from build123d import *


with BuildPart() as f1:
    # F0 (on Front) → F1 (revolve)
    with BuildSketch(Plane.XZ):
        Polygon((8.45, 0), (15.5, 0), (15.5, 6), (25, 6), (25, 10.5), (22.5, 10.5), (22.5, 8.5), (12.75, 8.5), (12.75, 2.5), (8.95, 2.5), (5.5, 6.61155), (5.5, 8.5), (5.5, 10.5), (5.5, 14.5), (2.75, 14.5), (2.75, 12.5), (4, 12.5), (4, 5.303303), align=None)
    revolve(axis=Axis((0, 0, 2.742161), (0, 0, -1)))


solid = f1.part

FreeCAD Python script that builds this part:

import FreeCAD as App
import Part
import Sketcher
Q = App.Units.Quantity


def add_polygon(sketch, points):
    """Adds a closed chain of lines whose ends are joined by coincident constraints."""
    first, n = sketch.GeometryCount, len(points)
    for a, b in zip(points, points[1:] + points[:1]):
        sketch.addGeometry(Part.LineSegment(App.Vector(*a, 0), App.Vector(*b, 0)), False)
    for i in range(n):
        sketch.addConstraint(Sketcher.Constraint("Coincident", first + i, 2, first + (i + 1) % n, 1))

doc = App.newDocument("Part")
params = doc.addObject("Spreadsheet::Sheet", "Params")
for row, (alias, value) in enumerate([
    ("sketch1_height", "6 mm"),
    ("sketch1_height2", "2 mm"),
    ("sketch1_width", "9.5 mm"),
    ("sketch1_width2", "2.5 mm"),
    ("sketch1_width3", "3.8 mm"),
    ("revolution_angle", "360 deg"),
], start=1):
    params.set(f"A{row}", alias)
    params.set(f"B{row}", "=" + value)
    params.setAlias(f"B{row}", alias)

body = doc.addObject("PartDesign::Body", "Body")

# Sketch on XZ plane
sketch1 = doc.addObject("Sketcher::SketchObject", "Sketch")
body.addObject(sketch1)
sketch1.AttachmentSupport = (doc.XZ_Plane, [""])
sketch1.MapMode = "FlatFace"
add_polygon(sketch1, [(8.45, 0), (15.5, 0), (15.5, 6), (25, 6), (25, 10.5), (22.5, 10.5), (22.5, 8.5), (12.75, 8.5), (12.75, 2.5), (8.95, 2.5), (5.5, 6.61155), (5.5, 14.5), (2.75, 14.5), (2.75, 12.5), (4, 12.5), (4, 5.303303)])  # lines 0-15
sketch1.addConstraint(Sketcher.Constraint("Horizontal", 0))
sketch1.addConstraint(Sketcher.Constraint("Vertical", 1))
sketch1.addConstraint(Sketcher.Constraint("Horizontal", 2))
sketch1.addConstraint(Sketcher.Constraint("Vertical", 3))
sketch1.addConstraint(Sketcher.Constraint("Horizontal", 4))
sketch1.addConstraint(Sketcher.Constraint("Vertical", 5))
sketch1.addConstraint(Sketcher.Constraint("Horizontal", 6))
sketch1.addConstraint(Sketcher.Constraint("Vertical", 7))
sketch1.addConstraint(Sketcher.Constraint("Horizontal", 8))
sketch1.addConstraint(Sketcher.Constraint("Vertical", 10))
sketch1.addConstraint(Sketcher.Constraint("Horizontal", 11))
sketch1.addConstraint(Sketcher.Constraint("Vertical", 12))
sketch1.addConstraint(Sketcher.Constraint("Horizontal", 13))
sketch1.addConstraint(Sketcher.Constraint("Vertical", 14))
sketch1.addConstraint(Sketcher.Constraint("PointOnObject", 0, 2, -1))
sketch1.addConstraint(Sketcher.Constraint("Parallel", 9, 15))
sketch1.addConstraint(Sketcher.Constraint("Equal", 1, 7))
sketch1.addConstraint(Sketcher.Constraint("Equal", 5, 12))
sketch1.addConstraint(Sketcher.Constraint("DistanceY", 1, 1, 1, 2, 6.0))
sketch1.addConstraint(Sketcher.Constraint("DistanceY", 5, 2, 5, 1, 2.0))
sketch1.addConstraint(Sketcher.Constraint("Angle", 9, Q("129.999999 deg")))
sketch1.addConstraint(Sketcher.Constraint("DistanceX", 2, 1, 2, 2, 9.5))
sketch1.addConstraint(Sketcher.Constraint("DistanceX", 4, 2, 4, 1, 2.5))
sketch1.addConstraint(Sketcher.Constraint("DistanceX", 8, 2, 8, 1, 3.8))
sketch1.addConstraint(Sketcher.Constraint("DistanceY", 3, 1, 3, 2, 4.5))
sketch1.addConstraint(Sketcher.Constraint("DistanceX", -1, 1, 2, 2, 25.0))
sketch1.addConstraint(Sketcher.Constraint("DistanceX", -1, 1, 13, 2, 4.0))
sketch1.addConstraint(Sketcher.Constraint("DistanceX", 9, 2, 1, 2, 10.0))
sketch1.addConstraint(Sketcher.Constraint("DistanceY", 6, 2, 10, 2, 6.0))
sketch1.addConstraint(Sketcher.Constraint("DistanceX", 11, 2, 6, 2, 10.0))
sketch1.addConstraint(Sketcher.Constraint("DistanceX", 0, 1, 0, 2, 7.05))
sketch1.addConstraint(Sketcher.Constraint("DistanceX", 6, 2, 6, 1, 9.75))
sketch1.setExpression("Constraints[34]", "Params.sketch1_height")
sketch1.setExpression("Constraints[35]", "Params.sketch1_height2")
sketch1.setExpression("Constraints[37]", "Params.sketch1_width")
sketch1.setExpression("Constraints[38]", "Params.sketch1_width2")
sketch1.setExpression("Constraints[39]", "Params.sketch1_width3")
revolution = doc.addObject("PartDesign::Revolution", "Revolution")
body.addObject(revolution)
revolution.Profile = sketch1
revolution.ReferenceAxis = (sketch1, ["V_Axis"])
revolution.setExpression("Angle", "Params.revolution_angle")

doc.recompute()
